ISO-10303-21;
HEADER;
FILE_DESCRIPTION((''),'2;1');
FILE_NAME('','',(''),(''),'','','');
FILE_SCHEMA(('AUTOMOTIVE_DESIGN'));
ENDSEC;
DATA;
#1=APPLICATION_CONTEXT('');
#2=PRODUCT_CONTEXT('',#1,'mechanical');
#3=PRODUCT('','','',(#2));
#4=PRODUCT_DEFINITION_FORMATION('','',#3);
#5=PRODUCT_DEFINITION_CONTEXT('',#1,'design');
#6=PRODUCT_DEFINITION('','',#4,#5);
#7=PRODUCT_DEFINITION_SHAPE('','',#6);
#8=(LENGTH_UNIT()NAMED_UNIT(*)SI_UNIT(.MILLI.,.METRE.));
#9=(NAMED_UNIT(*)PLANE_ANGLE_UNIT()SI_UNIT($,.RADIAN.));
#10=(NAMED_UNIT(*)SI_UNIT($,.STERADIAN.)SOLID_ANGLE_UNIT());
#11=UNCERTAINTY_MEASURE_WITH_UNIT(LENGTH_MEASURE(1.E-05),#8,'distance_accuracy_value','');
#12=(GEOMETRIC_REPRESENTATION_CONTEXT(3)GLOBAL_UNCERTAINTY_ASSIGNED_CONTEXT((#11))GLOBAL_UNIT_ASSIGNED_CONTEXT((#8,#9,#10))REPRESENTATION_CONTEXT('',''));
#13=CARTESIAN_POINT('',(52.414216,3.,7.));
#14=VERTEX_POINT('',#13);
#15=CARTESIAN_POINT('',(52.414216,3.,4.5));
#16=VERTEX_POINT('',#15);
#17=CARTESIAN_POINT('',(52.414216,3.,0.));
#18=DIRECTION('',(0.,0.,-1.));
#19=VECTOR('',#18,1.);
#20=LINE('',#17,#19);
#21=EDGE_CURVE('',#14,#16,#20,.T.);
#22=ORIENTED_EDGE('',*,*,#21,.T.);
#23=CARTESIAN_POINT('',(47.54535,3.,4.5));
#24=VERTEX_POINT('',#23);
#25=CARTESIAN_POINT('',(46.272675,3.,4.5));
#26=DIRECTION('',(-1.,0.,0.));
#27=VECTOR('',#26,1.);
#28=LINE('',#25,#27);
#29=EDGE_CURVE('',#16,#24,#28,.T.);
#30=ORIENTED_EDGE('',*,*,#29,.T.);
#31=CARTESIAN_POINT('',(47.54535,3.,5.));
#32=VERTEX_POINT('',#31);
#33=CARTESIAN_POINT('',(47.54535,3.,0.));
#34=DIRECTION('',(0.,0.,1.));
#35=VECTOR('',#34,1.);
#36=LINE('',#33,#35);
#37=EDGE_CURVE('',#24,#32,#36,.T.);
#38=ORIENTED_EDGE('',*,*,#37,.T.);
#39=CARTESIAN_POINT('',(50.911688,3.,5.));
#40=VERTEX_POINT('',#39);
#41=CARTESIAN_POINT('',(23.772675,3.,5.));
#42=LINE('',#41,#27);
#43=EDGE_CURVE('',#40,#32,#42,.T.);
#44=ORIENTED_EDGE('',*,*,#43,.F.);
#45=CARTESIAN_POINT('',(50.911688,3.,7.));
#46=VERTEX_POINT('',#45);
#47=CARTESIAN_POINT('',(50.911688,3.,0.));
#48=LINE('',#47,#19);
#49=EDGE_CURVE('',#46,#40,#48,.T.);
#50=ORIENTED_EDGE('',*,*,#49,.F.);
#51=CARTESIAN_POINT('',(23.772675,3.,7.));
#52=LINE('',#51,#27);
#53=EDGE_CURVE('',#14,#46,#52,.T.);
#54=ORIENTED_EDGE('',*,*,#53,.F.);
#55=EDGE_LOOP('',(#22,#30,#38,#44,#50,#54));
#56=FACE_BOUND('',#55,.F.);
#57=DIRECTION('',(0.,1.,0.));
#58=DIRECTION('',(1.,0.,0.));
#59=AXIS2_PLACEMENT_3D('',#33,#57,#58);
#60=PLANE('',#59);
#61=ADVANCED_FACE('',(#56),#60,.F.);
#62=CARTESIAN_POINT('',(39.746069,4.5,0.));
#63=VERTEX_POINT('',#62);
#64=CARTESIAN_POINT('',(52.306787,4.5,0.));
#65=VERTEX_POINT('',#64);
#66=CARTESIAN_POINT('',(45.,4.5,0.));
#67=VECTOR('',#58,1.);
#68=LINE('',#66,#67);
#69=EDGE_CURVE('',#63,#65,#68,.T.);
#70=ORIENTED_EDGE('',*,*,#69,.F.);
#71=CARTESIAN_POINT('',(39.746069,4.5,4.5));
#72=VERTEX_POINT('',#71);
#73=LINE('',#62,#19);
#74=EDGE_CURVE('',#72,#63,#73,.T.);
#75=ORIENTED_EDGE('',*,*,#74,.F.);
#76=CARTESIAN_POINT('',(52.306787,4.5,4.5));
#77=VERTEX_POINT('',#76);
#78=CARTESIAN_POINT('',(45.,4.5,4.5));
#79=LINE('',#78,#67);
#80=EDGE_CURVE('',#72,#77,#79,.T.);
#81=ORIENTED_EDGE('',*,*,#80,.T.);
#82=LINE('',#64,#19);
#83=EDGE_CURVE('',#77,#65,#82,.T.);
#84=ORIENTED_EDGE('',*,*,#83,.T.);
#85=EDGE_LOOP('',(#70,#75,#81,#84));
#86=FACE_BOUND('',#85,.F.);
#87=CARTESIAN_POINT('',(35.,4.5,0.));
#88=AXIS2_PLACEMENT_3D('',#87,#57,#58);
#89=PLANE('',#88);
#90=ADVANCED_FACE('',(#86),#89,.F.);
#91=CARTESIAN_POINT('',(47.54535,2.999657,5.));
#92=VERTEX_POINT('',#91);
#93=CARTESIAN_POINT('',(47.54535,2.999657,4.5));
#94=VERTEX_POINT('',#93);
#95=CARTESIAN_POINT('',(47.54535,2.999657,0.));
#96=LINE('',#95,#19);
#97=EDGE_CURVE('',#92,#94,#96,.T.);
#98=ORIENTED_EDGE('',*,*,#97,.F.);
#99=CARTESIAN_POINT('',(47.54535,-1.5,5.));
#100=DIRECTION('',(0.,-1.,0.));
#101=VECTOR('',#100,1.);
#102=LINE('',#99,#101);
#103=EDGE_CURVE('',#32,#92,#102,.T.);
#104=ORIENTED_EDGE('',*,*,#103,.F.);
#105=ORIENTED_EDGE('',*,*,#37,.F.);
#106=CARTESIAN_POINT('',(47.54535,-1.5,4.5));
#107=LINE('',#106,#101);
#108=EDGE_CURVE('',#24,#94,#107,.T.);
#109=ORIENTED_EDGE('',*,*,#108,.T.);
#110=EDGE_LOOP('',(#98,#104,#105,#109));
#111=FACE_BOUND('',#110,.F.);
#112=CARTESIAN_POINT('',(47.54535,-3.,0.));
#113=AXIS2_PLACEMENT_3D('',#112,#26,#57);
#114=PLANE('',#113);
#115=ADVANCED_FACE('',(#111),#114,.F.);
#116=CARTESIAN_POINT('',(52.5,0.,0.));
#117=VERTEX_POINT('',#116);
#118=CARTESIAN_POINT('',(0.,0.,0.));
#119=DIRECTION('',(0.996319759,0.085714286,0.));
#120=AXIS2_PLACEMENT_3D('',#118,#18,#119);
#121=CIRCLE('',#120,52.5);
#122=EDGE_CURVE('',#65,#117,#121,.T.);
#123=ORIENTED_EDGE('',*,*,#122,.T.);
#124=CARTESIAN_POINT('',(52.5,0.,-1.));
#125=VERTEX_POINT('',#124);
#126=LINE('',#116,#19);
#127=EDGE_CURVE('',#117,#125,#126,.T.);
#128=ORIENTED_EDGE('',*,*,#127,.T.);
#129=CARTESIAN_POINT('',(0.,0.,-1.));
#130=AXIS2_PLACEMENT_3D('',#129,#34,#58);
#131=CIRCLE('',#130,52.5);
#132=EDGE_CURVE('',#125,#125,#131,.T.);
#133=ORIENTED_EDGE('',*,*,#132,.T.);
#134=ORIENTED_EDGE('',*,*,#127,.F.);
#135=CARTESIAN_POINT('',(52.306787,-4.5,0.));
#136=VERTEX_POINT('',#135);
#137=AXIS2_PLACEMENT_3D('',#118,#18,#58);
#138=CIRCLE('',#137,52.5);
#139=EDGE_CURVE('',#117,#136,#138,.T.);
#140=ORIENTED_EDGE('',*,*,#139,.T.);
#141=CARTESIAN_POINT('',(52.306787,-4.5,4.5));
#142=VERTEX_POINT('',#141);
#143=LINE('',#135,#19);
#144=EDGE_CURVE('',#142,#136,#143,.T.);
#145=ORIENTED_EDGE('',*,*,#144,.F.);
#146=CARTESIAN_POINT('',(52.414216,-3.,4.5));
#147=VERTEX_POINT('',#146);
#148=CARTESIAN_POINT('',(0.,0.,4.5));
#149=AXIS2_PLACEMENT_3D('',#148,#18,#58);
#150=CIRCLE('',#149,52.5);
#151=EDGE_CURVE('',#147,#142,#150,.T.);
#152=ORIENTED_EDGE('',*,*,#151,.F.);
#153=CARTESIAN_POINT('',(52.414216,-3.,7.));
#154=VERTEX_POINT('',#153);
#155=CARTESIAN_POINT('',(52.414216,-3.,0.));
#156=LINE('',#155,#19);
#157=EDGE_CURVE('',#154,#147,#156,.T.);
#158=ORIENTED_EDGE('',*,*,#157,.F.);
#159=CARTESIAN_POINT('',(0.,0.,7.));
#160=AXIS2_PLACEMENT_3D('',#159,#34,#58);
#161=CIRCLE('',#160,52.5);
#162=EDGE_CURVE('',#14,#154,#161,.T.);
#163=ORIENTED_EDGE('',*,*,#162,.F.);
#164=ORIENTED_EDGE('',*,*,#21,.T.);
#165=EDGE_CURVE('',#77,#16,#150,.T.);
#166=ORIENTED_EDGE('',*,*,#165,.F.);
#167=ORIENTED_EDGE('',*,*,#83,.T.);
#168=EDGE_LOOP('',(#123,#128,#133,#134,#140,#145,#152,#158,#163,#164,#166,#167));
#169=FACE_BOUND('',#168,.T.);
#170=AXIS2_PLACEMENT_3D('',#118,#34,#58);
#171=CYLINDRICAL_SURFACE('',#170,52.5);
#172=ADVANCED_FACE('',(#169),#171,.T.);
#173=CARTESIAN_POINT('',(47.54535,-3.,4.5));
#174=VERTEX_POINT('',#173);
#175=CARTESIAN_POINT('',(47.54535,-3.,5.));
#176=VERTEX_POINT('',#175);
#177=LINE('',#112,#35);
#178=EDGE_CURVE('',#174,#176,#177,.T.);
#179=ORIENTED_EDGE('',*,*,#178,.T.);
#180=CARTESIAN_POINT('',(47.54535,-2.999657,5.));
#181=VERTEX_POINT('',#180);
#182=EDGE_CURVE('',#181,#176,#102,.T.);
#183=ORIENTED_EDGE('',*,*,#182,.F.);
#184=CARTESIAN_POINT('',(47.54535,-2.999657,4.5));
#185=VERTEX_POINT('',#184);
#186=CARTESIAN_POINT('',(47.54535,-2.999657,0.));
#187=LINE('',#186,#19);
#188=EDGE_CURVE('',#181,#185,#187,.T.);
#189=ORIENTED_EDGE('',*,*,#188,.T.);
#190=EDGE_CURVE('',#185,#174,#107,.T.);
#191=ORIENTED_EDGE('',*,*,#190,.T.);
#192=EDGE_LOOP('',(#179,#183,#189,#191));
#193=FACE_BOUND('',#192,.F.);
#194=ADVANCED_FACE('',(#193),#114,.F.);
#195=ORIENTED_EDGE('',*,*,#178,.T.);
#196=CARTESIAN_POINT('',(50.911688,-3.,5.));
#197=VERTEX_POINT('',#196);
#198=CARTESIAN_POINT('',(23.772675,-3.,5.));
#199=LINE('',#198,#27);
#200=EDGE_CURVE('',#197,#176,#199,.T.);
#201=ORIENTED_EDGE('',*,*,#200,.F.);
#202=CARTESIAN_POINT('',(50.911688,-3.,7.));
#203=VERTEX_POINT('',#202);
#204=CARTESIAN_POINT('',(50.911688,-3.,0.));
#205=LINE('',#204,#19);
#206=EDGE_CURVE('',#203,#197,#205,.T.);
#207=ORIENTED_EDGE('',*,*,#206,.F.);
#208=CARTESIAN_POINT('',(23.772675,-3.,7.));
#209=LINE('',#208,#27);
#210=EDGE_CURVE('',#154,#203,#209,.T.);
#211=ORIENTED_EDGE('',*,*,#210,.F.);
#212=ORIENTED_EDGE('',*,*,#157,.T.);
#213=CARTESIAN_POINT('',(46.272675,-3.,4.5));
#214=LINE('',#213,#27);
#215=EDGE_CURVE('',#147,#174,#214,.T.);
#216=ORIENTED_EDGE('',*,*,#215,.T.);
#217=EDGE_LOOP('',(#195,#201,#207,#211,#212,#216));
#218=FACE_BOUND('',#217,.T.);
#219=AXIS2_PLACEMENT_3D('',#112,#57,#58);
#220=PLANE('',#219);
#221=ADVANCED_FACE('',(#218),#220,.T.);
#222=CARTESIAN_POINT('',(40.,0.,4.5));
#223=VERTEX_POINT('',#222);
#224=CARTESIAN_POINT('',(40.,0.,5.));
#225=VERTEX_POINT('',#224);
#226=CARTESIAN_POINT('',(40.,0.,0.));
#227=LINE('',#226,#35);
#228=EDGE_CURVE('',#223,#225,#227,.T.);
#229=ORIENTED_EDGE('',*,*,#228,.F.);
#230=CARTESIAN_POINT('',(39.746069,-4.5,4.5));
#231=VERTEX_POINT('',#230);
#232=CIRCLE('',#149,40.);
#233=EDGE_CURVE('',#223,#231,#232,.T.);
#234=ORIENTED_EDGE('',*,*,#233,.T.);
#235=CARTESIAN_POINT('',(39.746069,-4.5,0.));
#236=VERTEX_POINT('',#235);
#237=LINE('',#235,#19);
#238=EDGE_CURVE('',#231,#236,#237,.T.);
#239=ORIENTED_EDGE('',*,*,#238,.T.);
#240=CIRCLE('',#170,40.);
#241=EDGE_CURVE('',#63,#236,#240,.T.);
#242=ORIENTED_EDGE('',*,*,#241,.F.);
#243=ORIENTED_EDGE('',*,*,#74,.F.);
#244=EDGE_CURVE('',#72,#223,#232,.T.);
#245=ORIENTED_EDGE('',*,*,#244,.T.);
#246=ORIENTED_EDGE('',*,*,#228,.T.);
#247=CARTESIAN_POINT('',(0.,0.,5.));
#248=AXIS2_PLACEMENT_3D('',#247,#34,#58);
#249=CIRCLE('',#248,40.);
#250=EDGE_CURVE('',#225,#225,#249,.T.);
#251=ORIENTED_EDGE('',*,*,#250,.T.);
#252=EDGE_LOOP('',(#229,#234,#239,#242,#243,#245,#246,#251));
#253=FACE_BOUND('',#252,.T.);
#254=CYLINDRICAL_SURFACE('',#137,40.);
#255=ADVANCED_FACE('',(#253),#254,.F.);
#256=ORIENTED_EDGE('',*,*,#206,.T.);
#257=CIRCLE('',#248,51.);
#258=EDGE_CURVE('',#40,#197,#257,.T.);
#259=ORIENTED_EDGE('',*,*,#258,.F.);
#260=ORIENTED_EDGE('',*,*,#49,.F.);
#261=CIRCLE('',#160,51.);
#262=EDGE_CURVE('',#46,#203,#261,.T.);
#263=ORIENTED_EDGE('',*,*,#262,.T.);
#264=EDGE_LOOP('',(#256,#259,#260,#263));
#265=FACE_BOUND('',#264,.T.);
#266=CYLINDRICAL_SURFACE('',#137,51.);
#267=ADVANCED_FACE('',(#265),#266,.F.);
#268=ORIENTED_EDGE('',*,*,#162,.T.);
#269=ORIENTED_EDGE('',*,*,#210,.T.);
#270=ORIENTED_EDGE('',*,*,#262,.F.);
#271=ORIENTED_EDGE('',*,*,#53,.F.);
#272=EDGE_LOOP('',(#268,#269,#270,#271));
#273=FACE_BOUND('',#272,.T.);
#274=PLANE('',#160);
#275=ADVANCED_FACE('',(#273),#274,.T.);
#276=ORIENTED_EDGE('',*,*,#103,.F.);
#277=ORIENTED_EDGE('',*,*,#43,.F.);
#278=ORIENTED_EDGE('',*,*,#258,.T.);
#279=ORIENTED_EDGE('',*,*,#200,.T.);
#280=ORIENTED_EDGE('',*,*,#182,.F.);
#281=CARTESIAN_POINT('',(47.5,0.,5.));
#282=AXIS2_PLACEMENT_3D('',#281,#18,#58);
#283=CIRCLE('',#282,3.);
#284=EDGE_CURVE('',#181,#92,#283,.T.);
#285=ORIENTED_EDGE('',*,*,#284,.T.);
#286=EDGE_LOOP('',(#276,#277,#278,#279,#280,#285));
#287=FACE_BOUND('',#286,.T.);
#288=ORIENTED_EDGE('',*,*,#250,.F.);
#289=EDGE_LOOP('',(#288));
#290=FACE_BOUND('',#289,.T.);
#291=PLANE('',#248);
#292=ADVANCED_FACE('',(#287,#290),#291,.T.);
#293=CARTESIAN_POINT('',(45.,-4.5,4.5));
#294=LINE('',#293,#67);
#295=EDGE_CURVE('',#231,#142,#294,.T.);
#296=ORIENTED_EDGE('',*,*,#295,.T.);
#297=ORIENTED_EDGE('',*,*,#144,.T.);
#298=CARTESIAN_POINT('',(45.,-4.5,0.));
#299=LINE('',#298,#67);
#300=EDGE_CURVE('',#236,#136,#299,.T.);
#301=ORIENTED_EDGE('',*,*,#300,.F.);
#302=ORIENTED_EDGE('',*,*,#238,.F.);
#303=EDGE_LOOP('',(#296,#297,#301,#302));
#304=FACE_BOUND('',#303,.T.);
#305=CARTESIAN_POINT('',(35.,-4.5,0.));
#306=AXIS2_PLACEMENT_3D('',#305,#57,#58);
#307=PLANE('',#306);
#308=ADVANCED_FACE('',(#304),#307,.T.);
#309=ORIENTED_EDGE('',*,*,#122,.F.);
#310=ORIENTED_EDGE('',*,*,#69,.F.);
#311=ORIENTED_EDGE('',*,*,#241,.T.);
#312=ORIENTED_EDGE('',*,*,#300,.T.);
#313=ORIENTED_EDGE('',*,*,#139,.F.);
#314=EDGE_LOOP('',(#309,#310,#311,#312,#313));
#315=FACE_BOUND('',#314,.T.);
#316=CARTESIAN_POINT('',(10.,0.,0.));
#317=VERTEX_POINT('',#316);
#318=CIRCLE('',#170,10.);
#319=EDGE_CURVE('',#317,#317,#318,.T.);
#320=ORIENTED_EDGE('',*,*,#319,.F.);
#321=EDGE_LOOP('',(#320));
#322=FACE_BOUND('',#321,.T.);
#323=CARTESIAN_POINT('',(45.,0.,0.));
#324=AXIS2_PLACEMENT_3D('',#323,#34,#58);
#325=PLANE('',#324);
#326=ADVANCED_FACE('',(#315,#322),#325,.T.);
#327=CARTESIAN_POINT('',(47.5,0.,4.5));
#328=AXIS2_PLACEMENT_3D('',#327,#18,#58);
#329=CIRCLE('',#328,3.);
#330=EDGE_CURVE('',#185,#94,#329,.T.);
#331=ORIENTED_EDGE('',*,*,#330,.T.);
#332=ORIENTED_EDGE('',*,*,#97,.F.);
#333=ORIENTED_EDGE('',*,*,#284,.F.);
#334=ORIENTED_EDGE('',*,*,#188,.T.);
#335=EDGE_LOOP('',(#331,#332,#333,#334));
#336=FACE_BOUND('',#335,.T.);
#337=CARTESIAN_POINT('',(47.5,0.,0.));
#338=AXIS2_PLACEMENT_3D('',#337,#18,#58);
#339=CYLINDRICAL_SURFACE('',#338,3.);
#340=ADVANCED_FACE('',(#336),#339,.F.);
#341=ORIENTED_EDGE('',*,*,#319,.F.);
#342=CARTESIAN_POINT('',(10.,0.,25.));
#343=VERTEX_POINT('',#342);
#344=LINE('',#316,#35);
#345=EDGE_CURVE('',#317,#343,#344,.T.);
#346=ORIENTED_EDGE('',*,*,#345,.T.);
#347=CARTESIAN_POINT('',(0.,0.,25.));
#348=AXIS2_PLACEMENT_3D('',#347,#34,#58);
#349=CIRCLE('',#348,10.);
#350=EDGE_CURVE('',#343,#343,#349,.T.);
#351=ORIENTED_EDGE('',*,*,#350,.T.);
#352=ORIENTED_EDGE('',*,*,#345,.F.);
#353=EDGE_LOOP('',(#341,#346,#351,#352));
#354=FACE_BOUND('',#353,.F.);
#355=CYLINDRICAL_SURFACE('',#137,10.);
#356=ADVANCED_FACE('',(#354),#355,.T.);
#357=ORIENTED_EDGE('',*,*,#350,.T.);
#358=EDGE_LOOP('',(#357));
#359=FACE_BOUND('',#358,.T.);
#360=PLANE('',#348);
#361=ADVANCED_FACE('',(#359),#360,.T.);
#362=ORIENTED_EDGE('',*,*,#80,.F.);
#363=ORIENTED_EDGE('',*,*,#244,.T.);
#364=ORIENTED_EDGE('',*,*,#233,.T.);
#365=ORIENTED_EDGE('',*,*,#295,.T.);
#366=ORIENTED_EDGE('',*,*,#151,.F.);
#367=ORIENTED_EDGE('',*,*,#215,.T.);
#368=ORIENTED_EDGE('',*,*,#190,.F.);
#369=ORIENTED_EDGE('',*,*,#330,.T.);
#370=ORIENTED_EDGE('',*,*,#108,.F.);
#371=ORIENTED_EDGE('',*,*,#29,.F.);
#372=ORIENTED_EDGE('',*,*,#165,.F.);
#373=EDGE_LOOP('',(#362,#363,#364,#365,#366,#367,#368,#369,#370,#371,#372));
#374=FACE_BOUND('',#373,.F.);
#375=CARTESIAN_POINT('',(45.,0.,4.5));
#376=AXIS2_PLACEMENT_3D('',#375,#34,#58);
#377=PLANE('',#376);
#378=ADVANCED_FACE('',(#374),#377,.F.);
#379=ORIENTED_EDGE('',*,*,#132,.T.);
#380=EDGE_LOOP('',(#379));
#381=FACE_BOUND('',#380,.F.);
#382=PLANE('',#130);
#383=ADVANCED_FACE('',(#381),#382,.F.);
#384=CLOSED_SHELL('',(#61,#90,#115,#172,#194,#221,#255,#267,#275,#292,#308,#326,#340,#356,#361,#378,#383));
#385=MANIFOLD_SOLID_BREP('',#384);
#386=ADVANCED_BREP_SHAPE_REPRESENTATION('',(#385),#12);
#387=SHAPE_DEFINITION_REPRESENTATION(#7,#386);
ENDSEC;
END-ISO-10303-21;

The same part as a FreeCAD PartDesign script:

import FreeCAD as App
import Part
import Sketcher

V = App.Vector


def add_polygon(sketch, points):
    """Adds a closed chain of lines whose ends are joined by coincident constraints."""
    first, n = sketch.GeometryCount, len(points)
    for a, b in zip(points, points[1:] + points[:1]):
        sketch.addGeometry(Part.LineSegment(App.Vector(*a, 0), App.Vector(*b, 0)), False)
    for i in range(n):
        sketch.addConstraint(Sketcher.Constraint("Coincident", first + i, 2, first + (i + 1) % n, 1))

doc = App.newDocument("Part")
body = doc.addObject("PartDesign::Body", "Body")

# Sketch on XY plane
sketch1 = doc.addObject("Sketcher::SketchObject", "Sketch")
body.addObject(sketch1)
sketch1.AttachmentSupport = (doc.XY_Plane, [""])
sketch1.MapMode = "FlatFace"
sketch1.addGeometry(Part.Circle(V(0, 0, 0), V(0, 0, 1), 52), False)
sketch1.addConstraint(Sketcher.Constraint("Coincident", 0, 3, -1, 1))
sketch1.addConstraint(Sketcher.Constraint("Diameter", 0, 105.0))
pad1 = doc.addObject("PartDesign::Pad", "Pad")
body.addObject(pad1)
pad1.Profile = sketch1
pad1.Length = 1
pad1.Reversed = True

# Sketch on XY plane
sketch2 = doc.addObject("Sketcher::SketchObject", "Sketch001")
body.addObject(sketch2)
sketch2.AttachmentSupport = (doc.XY_Plane, [""])
sketch2.MapMode = "FlatFace"
sketch2.addGeometry(Part.Circle(V(0, 0, 0), V(0, 0, 1), 51), False)
sketch2.addGeometry(Part.Circle(V(0, 0, 0), V(0, 0, 1), 40), False)
sketch2.addConstraint(Sketcher.Constraint("Coincident", 0, 3, -1, 1))
sketch2.addConstraint(Sketcher.Constraint("Coincident", 1, 3, -1, 1))
sketch2.addConstraint(Sketcher.Constraint("Diameter", 0, 102.0))
sketch2.addConstraint(Sketcher.Constraint("Diameter", 1, 80.0))
pad2 = doc.addObject("PartDesign::Pad", "Pad001")
body.addObject(pad2)
pad2.Profile = sketch2
pad2.Length = 5

# Sketch on XY plane
sketch3 = doc.addObject("Sketcher::SketchObject", "Sketch002")
body.addObject(sketch3)
sketch3.AttachmentSupport = (doc.XY_Plane, [""])
sketch3.MapMode = "FlatFace"
sketch3.addGeometry(Part.Circle(V(0, 0, 0), V(0, 0, 1), 52), False)
sketch3.addGeometry(Part.Circle(V(0, 0, 0), V(0, 0, 1), 51), False)
sketch3.addConstraint(Sketcher.Constraint("Coincident", 0, 3, -1, 1))
sketch3.addConstraint(Sketcher.Constraint("Coincident", 1, 3, -1, 1))
sketch3.addConstraint(Sketcher.Constraint("Diameter", 0, 105.0))
sketch3.addConstraint(Sketcher.Constraint("Diameter", 1, 102.0))
pad3 = doc.addObject("PartDesign::Pad", "Pad002")
body.addObject(pad3)
pad3.Profile = sketch3
pad3.Length = 7

# Sketch on XY plane
sketch4 = doc.addObject("Sketcher::SketchObject", "Sketch003")
body.addObject(sketch4)
sketch4.AttachmentSupport = (doc.XY_Plane, [""])
sketch4.MapMode = "FlatFace"
add_polygon(sketch4, [(35, 4), (35, -4), (55, -4), (55, 4)])  # lines 0-3
sketch4.addConstraint(Sketcher.Constraint("Vertical", 0))
sketch4.addConstraint(Sketcher.Constraint("Horizontal", 1))
sketch4.addConstraint(Sketcher.Constraint("Vertical", 2))
sketch4.addConstraint(Sketcher.Constraint("Horizontal", 3))
sketch4.addConstraint(Sketcher.Constraint("DistanceX", 1, 1, 1, 2, 20.0))
sketch4.addConstraint(Sketcher.Constraint("DistanceY", 0, 2, 0, 1, 9.0))
sketch4.addConstraint(Sketcher.Constraint("DistanceX", -1, 1, 0, 2, 35.0))
sketch4.addConstraint(Sketcher.Constraint("DistanceY", 0, 2, -1, 1, 4.5))
pocket1 = doc.addObject("PartDesign::Pocket", "Pocket")
body.addObject(pocket1)
pocket1.Profile = sketch4
pocket1.Length = 4.5
pocket1.Reversed = True

# Sketch on XY plane
sketch5 = doc.addObject("Sketcher::SketchObject", "Sketch004")
body.addObject(sketch5)
sketch5.AttachmentSupport = (doc.XY_Plane, [""])
sketch5.MapMode = "FlatFace"
sketch5.addGeometry(Part.Circle(V(47.5, 0, 0), V(0, 0, 1), 3), False)
sketch5.addConstraint(Sketcher.Constraint("PointOnObject", 0, 3, -1))
sketch5.addConstraint(Sketcher.Constraint("Diameter", 0, 6.0))
sketch5.addConstraint(Sketcher.Constraint("DistanceX", -1, 1, 0, 3, 47.5))
pocket2 = doc.addObject("PartDesign::Pocket", "Pocket001")
body.addObject(pocket2)
pocket2.Profile = sketch5
pocket2.Type = "ThroughAll"
pocket2.Reversed = True

# Sketch on XY plane
sketch6 = doc.addObject("Sketcher::SketchObject", "Sketch005")
body.addObject(sketch6)
sketch6.AttachmentSupport = (doc.XY_Plane, [""])
sketch6.MapMode = "FlatFace"
add_polygon(sketch6, [(48, 3), (48, -3), (56, -3), (56, 3)])  # lines 0-3
sketch6.addConstraint(Sketcher.Constraint("Vertical", 0))
sketch6.addConstraint(Sketcher.Constraint("Horizontal", 1))
sketch6.addConstraint(Sketcher.Constraint("Vertical", 2))
sketch6.addConstraint(Sketcher.Constraint("Horizontal", 3))
sketch6.addConstraint(Sketcher.Constraint("DistanceY", 0, 2, 0, 1, 6.0))
sketch6.addConstraint(Sketcher.Constraint("DistanceY", 0, 2, -1, 1, 3.0))
sketch6.addConstraint(Sketcher.Constraint("DistanceX", 1, 1, 1, 2, 8.064538))
sketch6.addConstraint(Sketcher.Constraint("DistanceX", -1, 1, 0, 2, 47.54535))
pocket3 = doc.addObject("PartDesign::Pocket", "Pocket002")
body.addObject(pocket3)
pocket3.Profile = sketch6
pocket3.Length = 10
pocket3.Reversed = True

# Sketch on XY plane
sketch7 = doc.addObject("Sketcher::SketchObject", "Sketch006")
body.addObject(sketch7)
sketch7.AttachmentSupport = (doc.XY_Plane, [""])
sketch7.MapMode = "FlatFace"
sketch7.addGeometry(Part.Circle(V(0, 0, 0), V(0, 0, 1), 10), False)
sketch7.addConstraint(Sketcher.Constraint("Coincident", 0, 3, -1, 1))
sketch7.addConstraint(Sketcher.Constraint("Diameter", 0, 20.0))
pad4 = doc.addObject("PartDesign::Pad", "Pad003")
body.addObject(pad4)
pad4.Profile = sketch7
pad4.Length = 25

doc.recompute()
